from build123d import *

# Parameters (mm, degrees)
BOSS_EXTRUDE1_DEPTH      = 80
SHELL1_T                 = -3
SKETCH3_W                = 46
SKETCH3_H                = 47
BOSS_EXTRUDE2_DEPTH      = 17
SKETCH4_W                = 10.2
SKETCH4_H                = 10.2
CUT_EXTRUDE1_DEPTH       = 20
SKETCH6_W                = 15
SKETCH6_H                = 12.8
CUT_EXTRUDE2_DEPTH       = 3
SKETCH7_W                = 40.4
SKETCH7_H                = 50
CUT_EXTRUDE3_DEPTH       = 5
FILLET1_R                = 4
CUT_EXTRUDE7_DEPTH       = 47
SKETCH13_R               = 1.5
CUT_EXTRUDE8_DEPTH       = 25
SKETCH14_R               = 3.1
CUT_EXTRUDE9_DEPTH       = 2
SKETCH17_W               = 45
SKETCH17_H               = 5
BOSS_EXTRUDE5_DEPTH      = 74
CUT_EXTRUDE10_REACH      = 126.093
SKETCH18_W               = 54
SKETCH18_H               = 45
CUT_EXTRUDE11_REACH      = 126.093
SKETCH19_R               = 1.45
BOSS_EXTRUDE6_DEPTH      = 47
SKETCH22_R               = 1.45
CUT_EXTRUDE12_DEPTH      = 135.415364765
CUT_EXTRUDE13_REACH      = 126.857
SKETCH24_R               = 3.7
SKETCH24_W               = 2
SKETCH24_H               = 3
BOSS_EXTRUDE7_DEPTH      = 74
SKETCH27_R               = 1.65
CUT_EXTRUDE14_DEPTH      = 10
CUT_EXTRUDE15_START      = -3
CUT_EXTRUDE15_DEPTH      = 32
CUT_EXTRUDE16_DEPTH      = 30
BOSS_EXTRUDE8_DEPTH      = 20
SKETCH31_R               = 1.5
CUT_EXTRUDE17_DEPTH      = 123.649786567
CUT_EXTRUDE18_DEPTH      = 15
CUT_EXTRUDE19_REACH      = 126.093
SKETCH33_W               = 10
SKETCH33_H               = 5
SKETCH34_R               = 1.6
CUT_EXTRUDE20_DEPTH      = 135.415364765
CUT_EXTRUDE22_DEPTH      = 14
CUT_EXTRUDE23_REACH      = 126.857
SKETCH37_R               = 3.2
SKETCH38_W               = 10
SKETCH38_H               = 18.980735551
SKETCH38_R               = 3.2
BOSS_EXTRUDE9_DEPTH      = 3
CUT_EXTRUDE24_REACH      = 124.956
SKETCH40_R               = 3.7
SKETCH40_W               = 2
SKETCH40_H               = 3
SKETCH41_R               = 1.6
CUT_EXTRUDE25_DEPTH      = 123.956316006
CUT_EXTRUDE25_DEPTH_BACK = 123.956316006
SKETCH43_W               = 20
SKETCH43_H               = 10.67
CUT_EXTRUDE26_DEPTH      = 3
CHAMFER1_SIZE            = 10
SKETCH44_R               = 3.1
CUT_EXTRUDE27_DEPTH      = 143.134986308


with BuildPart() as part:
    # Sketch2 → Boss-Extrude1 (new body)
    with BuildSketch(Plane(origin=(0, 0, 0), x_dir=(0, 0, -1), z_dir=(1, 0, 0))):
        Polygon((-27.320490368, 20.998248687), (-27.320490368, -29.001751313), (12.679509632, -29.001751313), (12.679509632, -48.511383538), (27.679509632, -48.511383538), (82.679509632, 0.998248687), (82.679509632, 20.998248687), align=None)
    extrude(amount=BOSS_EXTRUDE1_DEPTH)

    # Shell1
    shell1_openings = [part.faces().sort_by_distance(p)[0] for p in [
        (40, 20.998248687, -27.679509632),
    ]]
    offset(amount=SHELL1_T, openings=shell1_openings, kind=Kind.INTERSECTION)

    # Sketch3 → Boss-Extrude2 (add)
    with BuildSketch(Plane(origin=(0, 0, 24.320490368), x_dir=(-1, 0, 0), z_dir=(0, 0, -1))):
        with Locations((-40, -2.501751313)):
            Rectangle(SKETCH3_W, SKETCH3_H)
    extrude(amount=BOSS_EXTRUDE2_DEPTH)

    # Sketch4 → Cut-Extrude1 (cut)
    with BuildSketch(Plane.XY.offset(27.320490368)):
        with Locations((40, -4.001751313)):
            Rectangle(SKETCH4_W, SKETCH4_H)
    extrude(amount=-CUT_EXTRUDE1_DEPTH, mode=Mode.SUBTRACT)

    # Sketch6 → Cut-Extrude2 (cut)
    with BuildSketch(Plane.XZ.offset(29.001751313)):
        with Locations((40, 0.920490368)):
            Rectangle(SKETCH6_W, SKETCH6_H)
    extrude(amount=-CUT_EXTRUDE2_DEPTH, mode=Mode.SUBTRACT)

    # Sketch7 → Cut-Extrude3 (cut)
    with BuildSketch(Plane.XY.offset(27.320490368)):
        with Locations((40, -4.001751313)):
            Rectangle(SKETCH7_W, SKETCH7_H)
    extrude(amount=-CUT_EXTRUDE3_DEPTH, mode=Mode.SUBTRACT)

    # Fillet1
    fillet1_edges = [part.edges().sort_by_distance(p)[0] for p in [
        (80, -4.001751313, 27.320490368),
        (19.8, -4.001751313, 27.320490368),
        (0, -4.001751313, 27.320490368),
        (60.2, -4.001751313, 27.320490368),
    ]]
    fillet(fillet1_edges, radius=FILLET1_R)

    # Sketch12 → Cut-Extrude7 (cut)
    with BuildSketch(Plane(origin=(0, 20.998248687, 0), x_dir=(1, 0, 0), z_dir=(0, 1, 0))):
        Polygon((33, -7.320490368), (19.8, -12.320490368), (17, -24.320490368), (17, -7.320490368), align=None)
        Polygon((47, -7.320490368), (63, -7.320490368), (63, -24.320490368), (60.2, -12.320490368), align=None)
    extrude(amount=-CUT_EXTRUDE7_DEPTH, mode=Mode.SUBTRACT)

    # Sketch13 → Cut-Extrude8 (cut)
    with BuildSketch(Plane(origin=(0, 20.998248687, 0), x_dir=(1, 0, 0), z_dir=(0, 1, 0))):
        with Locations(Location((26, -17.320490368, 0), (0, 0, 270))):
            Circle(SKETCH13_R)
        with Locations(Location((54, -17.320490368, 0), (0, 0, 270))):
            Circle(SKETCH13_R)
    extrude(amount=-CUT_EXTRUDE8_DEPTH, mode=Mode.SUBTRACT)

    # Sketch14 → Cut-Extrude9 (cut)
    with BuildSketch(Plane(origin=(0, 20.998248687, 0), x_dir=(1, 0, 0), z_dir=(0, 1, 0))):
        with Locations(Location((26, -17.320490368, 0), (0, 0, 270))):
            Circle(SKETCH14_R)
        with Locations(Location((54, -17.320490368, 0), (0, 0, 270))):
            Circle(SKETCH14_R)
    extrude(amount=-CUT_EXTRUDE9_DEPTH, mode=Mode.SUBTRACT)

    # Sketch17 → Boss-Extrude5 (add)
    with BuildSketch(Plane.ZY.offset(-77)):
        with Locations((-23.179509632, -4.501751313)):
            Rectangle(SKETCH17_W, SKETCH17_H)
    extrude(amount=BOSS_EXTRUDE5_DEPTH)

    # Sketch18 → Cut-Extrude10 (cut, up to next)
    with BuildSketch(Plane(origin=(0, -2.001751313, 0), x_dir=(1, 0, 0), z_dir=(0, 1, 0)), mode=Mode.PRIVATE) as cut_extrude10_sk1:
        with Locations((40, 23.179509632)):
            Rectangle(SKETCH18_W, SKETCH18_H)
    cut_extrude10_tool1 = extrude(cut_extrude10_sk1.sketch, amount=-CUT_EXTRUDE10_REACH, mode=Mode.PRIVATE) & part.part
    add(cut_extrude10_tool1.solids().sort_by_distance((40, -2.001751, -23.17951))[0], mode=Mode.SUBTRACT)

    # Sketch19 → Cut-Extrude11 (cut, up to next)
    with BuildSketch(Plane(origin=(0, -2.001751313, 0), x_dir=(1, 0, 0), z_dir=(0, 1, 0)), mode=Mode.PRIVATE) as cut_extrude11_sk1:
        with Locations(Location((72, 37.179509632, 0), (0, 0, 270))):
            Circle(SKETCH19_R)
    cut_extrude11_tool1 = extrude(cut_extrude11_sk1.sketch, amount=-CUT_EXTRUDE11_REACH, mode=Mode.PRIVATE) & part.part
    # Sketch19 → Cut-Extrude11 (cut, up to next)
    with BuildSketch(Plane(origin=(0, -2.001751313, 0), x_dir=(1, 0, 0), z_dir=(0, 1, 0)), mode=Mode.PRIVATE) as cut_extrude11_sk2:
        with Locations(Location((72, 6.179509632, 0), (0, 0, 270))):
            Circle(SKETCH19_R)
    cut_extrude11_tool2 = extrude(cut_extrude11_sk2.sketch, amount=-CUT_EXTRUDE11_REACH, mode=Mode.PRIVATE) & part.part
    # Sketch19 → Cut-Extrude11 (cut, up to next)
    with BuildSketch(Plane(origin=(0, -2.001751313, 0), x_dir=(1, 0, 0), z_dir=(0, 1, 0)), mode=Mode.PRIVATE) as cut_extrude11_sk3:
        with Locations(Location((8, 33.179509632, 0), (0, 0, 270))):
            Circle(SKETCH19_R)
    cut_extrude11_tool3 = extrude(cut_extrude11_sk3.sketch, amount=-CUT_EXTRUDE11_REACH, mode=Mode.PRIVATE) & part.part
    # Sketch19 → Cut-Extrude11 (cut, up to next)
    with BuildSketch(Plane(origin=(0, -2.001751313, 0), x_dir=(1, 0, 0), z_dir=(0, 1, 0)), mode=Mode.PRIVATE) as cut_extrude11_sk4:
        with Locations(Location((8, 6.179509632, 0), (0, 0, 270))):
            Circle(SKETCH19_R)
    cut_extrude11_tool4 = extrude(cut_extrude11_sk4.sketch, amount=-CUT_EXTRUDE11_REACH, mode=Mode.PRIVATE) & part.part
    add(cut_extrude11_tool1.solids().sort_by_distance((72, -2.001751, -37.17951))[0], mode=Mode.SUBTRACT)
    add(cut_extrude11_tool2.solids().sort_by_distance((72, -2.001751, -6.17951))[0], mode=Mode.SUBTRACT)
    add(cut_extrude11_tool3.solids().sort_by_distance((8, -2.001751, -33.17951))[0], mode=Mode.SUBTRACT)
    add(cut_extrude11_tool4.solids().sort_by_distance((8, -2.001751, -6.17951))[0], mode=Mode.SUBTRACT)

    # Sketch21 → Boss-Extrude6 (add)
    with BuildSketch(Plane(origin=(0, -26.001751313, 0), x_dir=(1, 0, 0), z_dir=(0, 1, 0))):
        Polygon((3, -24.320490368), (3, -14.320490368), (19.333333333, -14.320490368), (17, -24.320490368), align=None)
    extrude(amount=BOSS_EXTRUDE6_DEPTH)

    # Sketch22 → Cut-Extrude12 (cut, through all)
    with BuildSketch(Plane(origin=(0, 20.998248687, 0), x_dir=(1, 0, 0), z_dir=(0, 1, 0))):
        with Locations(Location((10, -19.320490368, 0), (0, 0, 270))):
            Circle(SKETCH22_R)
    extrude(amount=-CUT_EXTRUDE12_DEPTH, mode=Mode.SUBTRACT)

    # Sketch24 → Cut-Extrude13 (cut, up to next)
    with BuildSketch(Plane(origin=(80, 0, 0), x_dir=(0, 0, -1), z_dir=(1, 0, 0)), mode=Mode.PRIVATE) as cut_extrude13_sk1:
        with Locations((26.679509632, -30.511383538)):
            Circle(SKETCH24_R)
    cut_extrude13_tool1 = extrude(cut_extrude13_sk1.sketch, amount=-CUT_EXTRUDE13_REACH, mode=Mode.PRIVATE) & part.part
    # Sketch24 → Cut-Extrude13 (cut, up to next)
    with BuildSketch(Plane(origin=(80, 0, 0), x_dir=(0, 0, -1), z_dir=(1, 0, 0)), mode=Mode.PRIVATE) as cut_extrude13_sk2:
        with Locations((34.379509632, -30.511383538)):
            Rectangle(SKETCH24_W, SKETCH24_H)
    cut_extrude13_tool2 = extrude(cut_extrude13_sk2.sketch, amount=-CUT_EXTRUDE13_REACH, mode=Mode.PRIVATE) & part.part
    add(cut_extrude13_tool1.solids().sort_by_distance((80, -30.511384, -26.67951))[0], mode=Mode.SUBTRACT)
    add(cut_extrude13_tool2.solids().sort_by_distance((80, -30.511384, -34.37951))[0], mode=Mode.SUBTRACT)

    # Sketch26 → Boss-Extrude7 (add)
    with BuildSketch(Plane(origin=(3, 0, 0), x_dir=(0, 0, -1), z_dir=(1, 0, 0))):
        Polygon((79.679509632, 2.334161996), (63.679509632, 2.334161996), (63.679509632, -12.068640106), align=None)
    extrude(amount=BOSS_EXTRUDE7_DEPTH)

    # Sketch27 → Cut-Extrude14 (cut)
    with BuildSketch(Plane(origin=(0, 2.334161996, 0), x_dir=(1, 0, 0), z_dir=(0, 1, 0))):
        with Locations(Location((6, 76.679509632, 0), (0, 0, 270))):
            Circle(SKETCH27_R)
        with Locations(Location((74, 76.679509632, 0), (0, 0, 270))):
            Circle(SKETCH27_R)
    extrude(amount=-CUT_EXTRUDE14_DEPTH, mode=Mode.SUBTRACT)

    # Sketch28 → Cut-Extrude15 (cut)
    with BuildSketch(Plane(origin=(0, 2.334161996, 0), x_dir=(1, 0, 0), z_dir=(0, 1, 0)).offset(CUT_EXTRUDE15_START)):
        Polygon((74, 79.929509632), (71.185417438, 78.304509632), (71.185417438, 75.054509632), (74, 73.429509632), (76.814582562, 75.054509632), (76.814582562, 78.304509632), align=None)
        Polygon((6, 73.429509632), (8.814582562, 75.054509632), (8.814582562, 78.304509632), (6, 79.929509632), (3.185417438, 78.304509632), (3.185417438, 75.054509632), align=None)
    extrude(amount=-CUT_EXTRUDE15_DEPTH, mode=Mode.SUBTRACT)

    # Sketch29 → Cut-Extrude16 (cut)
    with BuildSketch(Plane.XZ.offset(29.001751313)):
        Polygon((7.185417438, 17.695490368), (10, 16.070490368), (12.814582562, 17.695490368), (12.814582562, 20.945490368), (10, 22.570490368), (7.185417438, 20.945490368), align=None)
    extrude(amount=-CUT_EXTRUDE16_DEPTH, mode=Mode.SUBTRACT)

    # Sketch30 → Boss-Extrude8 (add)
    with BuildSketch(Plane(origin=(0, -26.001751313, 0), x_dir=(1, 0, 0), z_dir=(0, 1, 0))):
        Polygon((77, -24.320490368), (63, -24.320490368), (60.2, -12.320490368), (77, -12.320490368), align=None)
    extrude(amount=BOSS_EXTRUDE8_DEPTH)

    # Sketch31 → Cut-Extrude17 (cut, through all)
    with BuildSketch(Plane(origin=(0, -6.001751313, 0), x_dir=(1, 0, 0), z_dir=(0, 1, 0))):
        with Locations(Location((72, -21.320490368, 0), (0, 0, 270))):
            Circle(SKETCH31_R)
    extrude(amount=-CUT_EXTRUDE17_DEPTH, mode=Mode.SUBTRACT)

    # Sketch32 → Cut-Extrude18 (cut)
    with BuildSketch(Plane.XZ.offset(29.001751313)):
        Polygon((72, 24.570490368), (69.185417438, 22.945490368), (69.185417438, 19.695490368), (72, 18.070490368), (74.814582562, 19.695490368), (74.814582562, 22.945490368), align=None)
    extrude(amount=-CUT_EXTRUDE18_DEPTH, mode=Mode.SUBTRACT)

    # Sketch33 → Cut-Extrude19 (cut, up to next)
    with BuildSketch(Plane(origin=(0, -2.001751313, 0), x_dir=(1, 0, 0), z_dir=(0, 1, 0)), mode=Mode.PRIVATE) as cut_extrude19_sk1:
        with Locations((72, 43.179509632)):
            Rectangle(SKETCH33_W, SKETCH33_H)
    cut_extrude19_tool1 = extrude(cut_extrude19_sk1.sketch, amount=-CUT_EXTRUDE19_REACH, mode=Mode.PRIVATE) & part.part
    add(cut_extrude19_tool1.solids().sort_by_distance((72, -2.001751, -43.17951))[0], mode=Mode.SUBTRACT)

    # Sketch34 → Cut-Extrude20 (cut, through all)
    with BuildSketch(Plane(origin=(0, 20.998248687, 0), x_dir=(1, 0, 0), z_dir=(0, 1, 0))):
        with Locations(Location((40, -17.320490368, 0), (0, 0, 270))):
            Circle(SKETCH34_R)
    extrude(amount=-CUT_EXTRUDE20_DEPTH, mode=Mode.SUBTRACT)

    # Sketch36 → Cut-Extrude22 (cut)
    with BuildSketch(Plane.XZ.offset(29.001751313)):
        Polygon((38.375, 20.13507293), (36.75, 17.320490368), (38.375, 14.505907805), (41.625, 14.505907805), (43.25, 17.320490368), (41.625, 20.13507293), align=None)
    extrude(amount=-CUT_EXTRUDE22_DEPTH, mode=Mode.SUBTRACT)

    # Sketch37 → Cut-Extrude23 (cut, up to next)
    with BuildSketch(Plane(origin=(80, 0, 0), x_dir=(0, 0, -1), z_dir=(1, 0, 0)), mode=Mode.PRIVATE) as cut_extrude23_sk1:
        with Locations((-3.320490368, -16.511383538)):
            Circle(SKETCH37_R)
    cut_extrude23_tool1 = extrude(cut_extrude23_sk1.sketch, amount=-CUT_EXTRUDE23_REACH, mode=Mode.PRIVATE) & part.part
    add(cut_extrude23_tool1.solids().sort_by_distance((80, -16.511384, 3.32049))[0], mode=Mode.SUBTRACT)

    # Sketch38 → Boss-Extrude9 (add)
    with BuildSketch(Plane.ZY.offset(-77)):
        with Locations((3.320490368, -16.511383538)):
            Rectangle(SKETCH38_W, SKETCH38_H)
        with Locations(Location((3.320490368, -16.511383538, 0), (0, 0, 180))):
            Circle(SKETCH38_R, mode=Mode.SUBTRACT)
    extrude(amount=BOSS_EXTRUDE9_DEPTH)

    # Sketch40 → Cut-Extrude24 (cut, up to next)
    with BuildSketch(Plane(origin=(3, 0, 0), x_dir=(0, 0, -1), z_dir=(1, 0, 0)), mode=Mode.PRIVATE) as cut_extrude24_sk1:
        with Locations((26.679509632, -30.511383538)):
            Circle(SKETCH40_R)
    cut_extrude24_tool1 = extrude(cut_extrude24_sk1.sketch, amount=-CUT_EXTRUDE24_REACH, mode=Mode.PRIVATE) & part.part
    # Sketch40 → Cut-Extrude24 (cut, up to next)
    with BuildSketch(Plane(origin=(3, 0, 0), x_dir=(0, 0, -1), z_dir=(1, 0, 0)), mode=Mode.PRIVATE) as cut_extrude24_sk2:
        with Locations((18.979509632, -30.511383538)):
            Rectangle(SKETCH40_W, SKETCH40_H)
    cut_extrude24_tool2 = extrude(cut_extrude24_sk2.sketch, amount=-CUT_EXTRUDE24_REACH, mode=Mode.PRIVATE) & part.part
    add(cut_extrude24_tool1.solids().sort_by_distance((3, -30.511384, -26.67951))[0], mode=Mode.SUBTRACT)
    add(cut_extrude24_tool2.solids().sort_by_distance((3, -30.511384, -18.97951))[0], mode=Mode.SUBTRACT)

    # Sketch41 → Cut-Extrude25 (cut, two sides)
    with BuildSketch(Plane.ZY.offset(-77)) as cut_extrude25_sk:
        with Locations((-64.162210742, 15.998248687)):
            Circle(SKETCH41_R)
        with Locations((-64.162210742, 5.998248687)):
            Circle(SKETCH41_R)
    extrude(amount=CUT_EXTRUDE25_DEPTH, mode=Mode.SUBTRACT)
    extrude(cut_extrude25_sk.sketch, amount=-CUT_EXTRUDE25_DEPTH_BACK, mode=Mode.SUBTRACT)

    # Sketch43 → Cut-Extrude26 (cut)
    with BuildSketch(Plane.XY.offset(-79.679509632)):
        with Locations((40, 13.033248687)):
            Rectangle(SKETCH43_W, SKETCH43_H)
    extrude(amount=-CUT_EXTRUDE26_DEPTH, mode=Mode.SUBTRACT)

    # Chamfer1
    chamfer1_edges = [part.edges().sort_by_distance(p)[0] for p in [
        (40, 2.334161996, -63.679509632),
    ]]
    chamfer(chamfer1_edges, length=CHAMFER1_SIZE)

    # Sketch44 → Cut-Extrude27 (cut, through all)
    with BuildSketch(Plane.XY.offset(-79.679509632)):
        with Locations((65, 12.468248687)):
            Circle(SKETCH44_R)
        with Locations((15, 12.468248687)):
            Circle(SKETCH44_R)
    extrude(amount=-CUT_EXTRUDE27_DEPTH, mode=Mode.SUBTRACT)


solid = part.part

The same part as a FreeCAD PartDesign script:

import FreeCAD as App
import Part
import Sketcher
from FreeCAD import Vector
Q = App.Units.Quantity


def edges_at(feature, points):
    """Names of the edges that pass closest to the given points."""
    edges = feature.Shape.Edges
    near = lambda p: min(range(len(edges)), key=lambda i: edges[i].distToShape(Part.Vertex(*p))[0])
    return sorted({f"Edge{near(p) + 1}" for p in points})


def faces_at(feature, points):
    """Names of the faces that lie closest to the given points."""
    faces = feature.Shape.Faces
    near = lambda p: min(range(len(faces)), key=lambda i: faces[i].distToShape(Part.Vertex(*p))[0])
    return sorted({f"Face{near(p) + 1}" for p in points})


def add_polygon(sketch, points):
    """Adds a closed chain of lines whose ends are joined by coincident constraints."""
    first, n = sketch.GeometryCount, len(points)
    for a, b in zip(points, points[1:] + points[:1]):
        sketch.addGeometry(Part.LineSegment(App.Vector(*a, 0), App.Vector(*b, 0)), False)
    for i in range(n):
        sketch.addConstraint(Sketcher.Constraint("Coincident", first + i, 2, first + (i + 1) % n, 1))

doc = App.newDocument("Part")
body = doc.addObject("PartDesign::Body", "Body")

# Sketch on YZ plane
sketch1 = body.newObject("Sketcher::SketchObject", "Sketch")
sketch1.AttachmentSupport = (doc.getObject("YZ_Plane"), [""])
sketch1.MapMode = "FlatFace"
add_polygon(sketch1, [(21, 27), (-29, 27), (-29, -13), (-49, -13), (-49, -28), (1, -83), (21, -83)])  # lines 0-6
sketch1.addConstraint([
    Sketcher.Constraint("Horizontal", 0),
    Sketcher.Constraint("Vertical", 1),
    Sketcher.Constraint("Horizontal", 2),
    Sketcher.Constraint("Vertical", 3),
    Sketcher.Constraint("Horizontal", 5),
    Sketcher.Constraint("Vertical", 6),
    Sketcher.Constraint("DistanceX", 0, 2, 0, 1, Q("50 mm")),
    Sketcher.Constraint("DistanceX", 5, 1, 5, 2, Q("20 mm")),
    Sketcher.Constraint("DistanceY", 1, 2, 1, 1, Q("40 mm")),
    Sketcher.Constraint("DistanceY", 3, 2, 3, 1, Q("15 mm")),
    Sketcher.Constraint("DistanceY", 6, 1, 6, 2, Q("110 mm")),
    Sketcher.Constraint("DistanceX", 2, 2, 2, 1, Q("19.509632 mm")),
    Sketcher.Constraint("DistanceX", 0, 2, -1, 1, Q("29.001751 mm")),
    Sketcher.Constraint("DistanceY", -1, 1, 0, 2, Q("27.32049 mm")),
])
pad1 = body.newObject("PartDesign::Pad", "Pad")
pad1.Profile = sketch1
pad1.Length = 80
doc.recompute()

thickness = body.newObject("PartDesign::Thickness", "Thickness")
thickness.Base = (pad1, faces_at(pad1, [(40, 20.998, -27.68)]))
thickness.Value = 3
thickness.Reversed = True
thickness.Join = "Intersection"

# Sketch on XY plane
sketch2 = body.newObject("Sketcher::SketchObject", "Sketch001")
sketch2.AttachmentSupport = (doc.getObject("XY_Plane"), [""])
sketch2.MapMode = "FlatFace"
sketch2.AttachmentOffset = App.Placement(Vector(0, 0, 24.32049), App.Rotation())
add_polygon(sketch2, [(63, 21), (63, -26), (17, -26), (17, 21)])  # lines 0-3
sketch2.addConstraint([
    Sketcher.Constraint("Vertical", 0),
    Sketcher.Constraint("Horizontal", 1),
    Sketcher.Constraint("Vertical", 2),
    Sketcher.Constraint("Horizontal", 3),
    Sketcher.Constraint("DistanceX", 1, 2, 1, 1, Q("46 mm")),
    Sketcher.Constraint("DistanceY", 0, 2, 0, 1, Q("47 mm")),
    Sketcher.Constraint("DistanceX", -1, 1, 0, 2, Q("63 mm")),
    Sketcher.Constraint("DistanceY", 0, 2, -1, 1, Q("26.001751 mm")),
])
pad2 = body.newObject("PartDesign::Pad", "Pad001")
pad2.Profile = sketch2
pad2.Length = 17
pad2.Reversed = True

# Sketch on XY plane
sketch3 = body.newObject("Sketcher::SketchObject", "Sketch002")
sketch3.AttachmentSupport = (doc.getObject("XY_Plane"), [""])
sketch3.MapMode = "FlatFace"
sketch3.AttachmentOffset = App.Placement(Vector(0, 0, 27.32049), App.Rotation())
add_polygon(sketch3, [(35, 1), (35, -9), (45, -9), (45, 1)])  # lines 0-3
sketch3.addConstraint([
    Sketcher.Constraint("Vertical", 0),
    Sketcher.Constraint("Horizontal", 1),
    Sketcher.Constraint("Vertical", 2),
    Sketcher.Constraint("Horizontal", 3),
    Sketcher.Constraint("Equal", 3, 0),
    Sketcher.Constraint("DistanceX", 1, 1, 1, 2, Q("10.2 mm")),
    Sketcher.Constraint("DistanceX", -1, 1, 0, 2, Q("34.9 mm")),
    Sketcher.Constraint("DistanceY", 0, 2, -1, 1, Q("9.101751 mm")),
])
pocket1 = body.newObject("PartDesign::Pocket", "Pocket")
pocket1.Profile = sketch3
pocket1.Length = 20

# Sketch on XZ plane
sketch4 = body.newObject("Sketcher::SketchObject", "Sketch003")
sketch4.AttachmentSupport = (doc.getObject("XZ_Plane"), [""])
sketch4.MapMode = "FlatFace"
sketch4.AttachmentOffset = App.Placement(Vector(0, 0, 29.001751), App.Rotation())
add_polygon(sketch4, [(32, 7), (32, -5), (48, -5), (48, 7)])  # lines 0-3
sketch4.addConstraint([
    Sketcher.Constraint("Vertical", 0),
    Sketcher.Constraint("Horizontal", 1),
    Sketcher.Constraint("Vertical", 2),
    Sketcher.Constraint("Horizontal", 3),
    Sketcher.Constraint("DistanceX", 1, 1, 1, 2, Q("15 mm")),
    Sketcher.Constraint("DistanceY", 0, 2, 0, 1, Q("12.8 mm")),
    Sketcher.Constraint("DistanceX", -1, 1, 0, 2, Q("32.5 mm")),
    Sketcher.Constraint("DistanceY", 0, 2, -1, 1, Q("5.47951 mm")),
])
pocket2 = body.newObject("PartDesign::Pocket", "Pocket001")
pocket2.Profile = sketch4
pocket2.Length = 3

# Sketch on XY plane
sketch5 = body.newObject("Sketcher::SketchObject", "Sketch004")
sketch5.AttachmentSupport = (doc.getObject("XY_Plane"), [""])
sketch5.MapMode = "FlatFace"
sketch5.AttachmentOffset = App.Placement(Vector(0, 0, 27.32049), App.Rotation())
add_polygon(sketch5, [(20, 21), (20, -29), (60, -29), (60, 21)])  # lines 0-3
sketch5.addConstraint([
    Sketcher.Constraint("Vertical", 0),
    Sketcher.Constraint("Horizontal", 1),
    Sketcher.Constraint("Vertical", 2),
    Sketcher.Constraint("Horizontal", 3),
    Sketcher.Constraint("DistanceY", 0, 2, 0, 1, Q("50 mm")),
    Sketcher.Constraint("DistanceX", 1, 1, 1, 2, Q("40.4 mm")),
    Sketcher.Constraint("DistanceX", -1, 1, 0, 2, Q("19.8 mm")),
    Sketcher.Constraint("DistanceY", 0, 2, -1, 1, Q("29.001751 mm")),
])
pocket3 = body.newObject("PartDesign::Pocket", "Pocket002")
pocket3.Profile = sketch5
pocket3.Length = 5
doc.recompute()

fillet = body.newObject("PartDesign::Fillet", "Fillet")
fillet.Base = (pocket3, edges_at(pocket3, [
    (80, -4.002, 27.32),
    (19.8, -4.002, 27.32),
    (0, -4.002, 27.32),
    (60.2, -4.002, 27.32),
]))
fillet.Radius = 4

# Sketch on XZ plane
sketch6 = body.newObject("Sketcher::SketchObject", "Sketch005")
sketch6.AttachmentSupport = (doc.getObject("XZ_Plane"), [""])
sketch6.MapMode = "FlatFace"
sketch6.AttachmentOffset = App.Placement(Vector(0, 0, -20.998249), App.Rotation())
add_polygon(sketch6, [(20, 12), (33, 7), (17, 7), (17, 24)])  # lines 0-3
add_polygon(sketch6, [(63, 7), (47, 7), (60, 12), (63, 24)])  # lines 4-7
sketch6.addConstraint([
    Sketcher.Constraint("Horizontal", 1),
    Sketcher.Constraint("Vertical", 2),
    Sketcher.Constraint("Horizontal", 4),
    Sketcher.Constraint("Vertical", 7),
    Sketcher.Constraint("Horizontal", 1, 2, 4, 2),
    Sketcher.Constraint("Horizontal", 3, 2, 5, 2),
    Sketcher.Constraint("Horizontal", 2, 2, 6, 2),
    Sketcher.Constraint("Equal", 1, 4),
    Sketcher.Constraint("Equal", 0, 5),
    Sketcher.Constraint("DistanceX", 1, 2, 1, 1, Q("16 mm")),
    Sketcher.Constraint("DistanceY", 2, 1, 2, 2, Q("17 mm")),
    Sketcher.Constraint("DistanceX", -1, 1, 0, 2, Q("33 mm")),
    Sketcher.Constraint("DistanceX", -1, 1, 4, 2, Q("47 mm")),
    Sketcher.Constraint("DistanceY", 1, 2, 3, 2, Q("5 mm")),
    Sketcher.Constraint("DistanceX", -1, 1, 3, 2, Q("19.8 mm")),
    Sketcher.Constraint("DistanceY", -1, 1, 0, 2, Q("7.32049 mm")),
])
pocket4 = body.newObject("PartDesign::Pocket", "Pocket003")
pocket4.Profile = sketch6
pocket4.Length = 47
pocket4.Reversed = True

# Sketch on XZ plane
sketch7 = body.newObject("Sketcher::SketchObject", "Sketch006")
sketch7.AttachmentSupport = (doc.getObject("XZ_Plane"), [""])
sketch7.MapMode = "FlatFace"
sketch7.AttachmentOffset = App.Placement(Vector(0, 0, -20.998249), App.Rotation())
sketch7.addGeometry([
    Part.Circle(Vector(26, 17.3, 0), Vector(0, 0, 1), 1.5),
    Part.Circle(Vector(54, 17.3, 0), Vector(0, 0, 1), 1.5),
], False)
sketch7.addConstraint([
    Sketcher.Constraint("Equal", 0, 1),
    Sketcher.Constraint("Horizontal", 0, 3, 1, 3),
    Sketcher.Constraint("Diameter", 0, Q("3 mm")),
    Sketcher.Constraint("DistanceX", -1, 1, 0, 3, Q("26 mm")),
    Sketcher.Constraint("DistanceX", -1, 1, 1, 3, Q("54 mm")),
    Sketcher.Constraint("DistanceY", -1, 1, 0, 3, Q("17.32049 mm")),
])
pocket5 = body.newObject("PartDesign::Pocket", "Pocket004")
pocket5.Profile = sketch7
pocket5.Length = 25
pocket5.Reversed = True

# Sketch on XZ plane
sketch8 = body.newObject("Sketcher::SketchObject", "Sketch007")
sketch8.AttachmentSupport = (doc.getObject("XZ_Plane"), [""])
sketch8.MapMode = "FlatFace"
sketch8.AttachmentOffset = App.Placement(Vector(0, 0, -20.998249), App.Rotation())
sketch8.addGeometry([
    Part.Circle(Vector(26, 17.3, 0), Vector(0, 0, 1), 3.1),
    Part.Circle(Vector(54, 17.3, 0), Vector(0, 0, 1), 3.1),
], False)
sketch8.addConstraint([
    Sketcher.Constraint("Equal", 0, 1),
    Sketcher.Constraint("Horizontal", 0, 3, 1, 3),
    Sketcher.Constraint("Diameter", 0, Q("6.2 mm")),
    Sketcher.Constraint("DistanceX", -1, 1, 0, 3, Q("26 mm")),
    Sketcher.Constraint("DistanceX", -1, 1, 1, 3, Q("54 mm")),
    Sketcher.Constraint("DistanceY", -1, 1, 0, 3, Q("17.32049 mm")),
])
pocket6 = body.newObject("PartDesign::Pocket", "Pocket005")
pocket6.Profile = sketch8
pocket6.Length = 2
pocket6.Reversed = True

# Sketch on YZ plane
sketch9 = body.newObject("Sketcher::SketchObject", "Sketch008")
sketch9.AttachmentSupport = (doc.getObject("YZ_Plane"), [""])
sketch9.MapMode = "FlatFace"
sketch9.AttachmentOffset = App.Placement(Vector(0, 0, 77), App.Rotation())
add_polygon(sketch9, [(-2, -46), (-7, -46), (-7, -1), (-2, -1)])  # lines 0-3
sketch9.addConstraint([
    Sketcher.Constraint("Horizontal", 0),
    Sketcher.Constraint("Vertical", 1),
    Sketcher.Constraint("Horizontal", 2),
    Sketcher.Constraint("Vertical", 3),
    Sketcher.Constraint("DistanceX", 0, 2, 0, 1, Q("5 mm")),
    Sketcher.Constraint("DistanceY", 1, 1, 1, 2, Q("45 mm")),
    Sketcher.Constraint("DistanceX", 0, 2, -1, 1, Q("7.001751 mm")),
    Sketcher.Constraint("DistanceY", 0, 2, -1, 1, Q("45.67951 mm")),
])
pad3 = body.newObject("PartDesign::Pad", "Pad002")
pad3.Profile = sketch9
pad3.Length = 74
pad3.Reversed = True

# Sketch on XZ plane
sketch10 = body.newObject("Sketcher::SketchObject", "Sketch009")
sketch10.AttachmentSupport = (doc.getObject("XZ_Plane"), [""])
sketch10.MapMode = "FlatFace"
sketch10.AttachmentOffset = App.Placement(Vector(0, 0, 2.001751), App.Rotation())
add_polygon(sketch10, [(13, -46), (13, -1), (67, -1), (67, -46)])  # lines 0-3
sketch10.addConstraint([
    Sketcher.Constraint("Vertical", 0),
    Sketcher.Constraint("Horizontal", 1),
    Sketcher.Constraint("Vertical", 2),
    Sketcher.Constraint("Horizontal", 3),
    Sketcher.Constraint("DistanceX", 1, 1, 1, 2, Q("54 mm")),
    Sketcher.Constraint("DistanceY", 0, 1, 0, 2, Q("45 mm")),
    Sketcher.Constraint("DistanceX", -1, 1, 0, 2, Q("13 mm")),
    Sketcher.Constraint("DistanceY", 0, 2, -1, 1, Q("0.67951 mm")),
])
pocket7 = body.newObject("PartDesign::Pocket", "Pocket006")
pocket7.Profile = sketch10
pocket7.Type = "UpToFirst"
pocket7.Reversed = True

# Sketch on XZ plane
sketch11 = body.newObject("Sketcher::SketchObject", "Sketch010")
sketch11.AttachmentSupport = (doc.getObject("XZ_Plane"), [""])
sketch11.MapMode = "FlatFace"
sketch11.AttachmentOffset = App.Placement(Vector(0, 0, 2.001751), App.Rotation())
sketch11.addGeometry(Part.Circle(Vector(72, -37.2, 0), Vector(0, 0, 1), 1.4), False)
sketch11.addConstraint([
    Sketcher.Constraint("Diameter", 0, Q("2.9 mm")),
    Sketcher.Constraint("DistanceX", -1, 1, 0, 3, Q("72 mm")),
    Sketcher.Constraint("DistanceY", 0, 3, -1, 1, Q("37.17951 mm")),
])
pocket8 = body.newObject("PartDesign::Pocket", "Pocket007")
pocket8.Profile = sketch11
pocket8.Type = "UpToFirst"
pocket8.Reversed = True

# Sketch on XZ plane
sketch12 = body.newObject("Sketcher::SketchObject", "Sketch011")
sketch12.AttachmentSupport = (doc.getObject("XZ_Plane"), [""])
sketch12.MapMode = "FlatFace"
sketch12.AttachmentOffset = App.Placement(Vector(0, 0, 2.001751), App.Rotation())
sketch12.addGeometry(Part.Circle(Vector(72, -6.2, 0), Vector(0, 0, 1), 1.4), False)
sketch12.addConstraint([
    Sketcher.Constraint("Diameter", 0, Q("2.9 mm")),
    Sketcher.Constraint("DistanceX", -1, 1, 0, 3, Q("72 mm")),
    Sketcher.Constraint("DistanceY", 0, 3, -1, 1, Q("6.17951 mm")),
])
pocket9 = body.newObject("PartDesign::Pocket", "Pocket008")
pocket9.Profile = sketch12
pocket9.Type = "UpToFirst"
pocket9.Reversed = True

# Sketch on XZ plane
sketch13 = body.newObject("Sketcher::SketchObject", "Sketch012")
sketch13.AttachmentSupport = (doc.getObject("XZ_Plane"), [""])
sketch13.MapMode = "FlatFace"
sketch13.AttachmentOffset = App.Placement(Vector(0, 0, 2.001751), App.Rotation())
sketch13.addGeometry(Part.Circle(Vector(8, -33.2, 0), Vector(0, 0, 1), 1.4), False)
sketch13.addConstraint([
    Sketcher.Constraint("Diameter", 0, Q("2.9 mm")),
    Sketcher.Constraint("DistanceX", -1, 1, 0, 3, Q("8 mm")),
    Sketcher.Constraint("DistanceY", 0, 3, -1, 1, Q("33.17951 mm")),
])
pocket10 = body.newObject("PartDesign::Pocket", "Pocket009")
pocket10.Profile = sketch13
pocket10.Type = "UpToFirst"
pocket10.Reversed = True

# Sketch on XZ plane
sketch14 = body.newObject("Sketcher::SketchObject", "Sketch013")
sketch14.AttachmentSupport = (doc.getObject("XZ_Plane"), [""])
sketch14.MapMode = "FlatFace"
sketch14.AttachmentOffset = App.Placement(Vector(0, 0, 2.001751), App.Rotation())
sketch14.addGeometry(Part.Circle(Vector(8, -6.2, 0), Vector(0, 0, 1), 1.4), False)
sketch14.addConstraint([
    Sketcher.Constraint("Diameter", 0, Q("2.9 mm")),
    Sketcher.Constraint("DistanceX", -1, 1, 0, 3, Q("8 mm")),
    Sketcher.Constraint("DistanceY", 0, 3, -1, 1, Q("6.17951 mm")),
])
pocket11 = body.newObject("PartDesign::Pocket", "Pocket010")
pocket11.Profile = sketch14
pocket11.Type = "UpToFirst"
pocket11.Reversed = True

# Sketch on XZ plane
sketch15 = body.newObject("Sketcher::SketchObject", "Sketch014")
sketch15.AttachmentSupport = (doc.getObject("XZ_Plane"), [""])
sketch15.MapMode = "FlatFace"
sketch15.AttachmentOffset = App.Placement(Vector(0, 0, 26.001751), App.Rotation())
add_polygon(sketch15, [(3, 14), (3, 24), (17, 24), (19, 14)])  # lines 0-3
sketch15.addConstraint([
    Sketcher.Constraint("Vertical", 0),
    Sketcher.Constraint("Horizontal", 1),
    Sketcher.Constraint("Horizontal", 3),
    Sketcher.Constraint("DistanceX", 1, 1, 1, 2, Q("14 mm")),
    Sketcher.Constraint("DistanceY", 0, 1, 0, 2, Q("10 mm")),
    Sketcher.Constraint("DistanceX", -1, 1, 0, 2, Q("3 mm")),
    Sketcher.Constraint("DistanceX", 3, 2, 3, 1, Q("16.333333 mm")),
    Sketcher.Constraint("DistanceY", -1, 1, 0, 2, Q("24.32049 mm")),
])
pad4 = body.newObject("PartDesign::Pad", "Pad003")
pad4.Profile = sketch15
pad4.Length = 47
pad4.Reversed = True

# Sketch on XZ plane
sketch16 = body.newObject("Sketcher::SketchObject", "Sketch015")
sketch16.AttachmentSupport = (doc.getObject("XZ_Plane"), [""])
sketch16.MapMode = "FlatFace"
sketch16.AttachmentOffset = App.Placement(Vector(0, 0, -20.998249), App.Rotation())
sketch16.addGeometry(Part.Circle(Vector(10, 19.3, 0), Vector(0, 0, 1), 1.4), False)
sketch16.addConstraint([
    Sketcher.Constraint("Diameter", 0, Q("2.9 mm")),
    Sketcher.Constraint("DistanceX", -1, 1, 0, 3, Q("10 mm")),
    Sketcher.Constraint("DistanceY", -1, 1, 0, 3, Q("19.32049 mm")),
])
pocket12 = body.newObject("PartDesign::Pocket", "Pocket011")
pocket12.Profile = sketch16
pocket12.Type = "ThroughAll"
pocket12.Reversed = True

# Sketch on YZ plane
sketch17 = body.newObject("Sketcher::SketchObject", "Sketch016")
sketch17.AttachmentSupport = (doc.getObject("YZ_Plane"), [""])
sketch17.MapMode = "FlatFace"
sketch17.AttachmentOffset = App.Placement(Vector(0, 0, 80), App.Rotation())
sketch17.addGeometry(Part.Circle(Vector(-30.5, -26.7, 0), Vector(0, 0, 1), 3.7), False)
sketch17.addConstraint([
    Sketcher.Constraint("Diameter", 0, Q("7.4 mm")),
    Sketcher.Constraint("DistanceY", 0, 3, -1, 1, Q("26.67951 mm")),
    Sketcher.Constraint("DistanceX", 0, 3, -1, 1, Q("30.511384 mm")),
])
pocket13 = body.newObject("PartDesign::Pocket", "Pocket012")
pocket13.Profile = sketch17
pocket13.Type = "UpToFirst"

# Sketch on YZ plane
sketch18 = body.newObject("Sketcher::SketchObject", "Sketch017")
sketch18.AttachmentSupport = (doc.getObject("YZ_Plane"), [""])
sketch18.MapMode = "FlatFace"
sketch18.AttachmentOffset = App.Placement(Vector(0, 0, 80), App.Rotation())
add_polygon(sketch18, [(-29, -33.4), (-32, -33.4), (-32, -35.4), (-29, -35.4)])  # lines 0-3
sketch18.addConstraint([
    Sketcher.Constraint("Horizontal", 0),
    Sketcher.Constraint("Vertical", 1),
    Sketcher.Constraint("Horizontal", 2),
    Sketcher.Constraint("Vertical", 3),
    Sketcher.Constraint("DistanceX", 0, 2, 0, 1, Q("3 mm")),
    Sketcher.Constraint("DistanceY", 1, 2, 1, 1, Q("2 mm")),
    Sketcher.Constraint("DistanceY", 0, 2, -1, 1, Q("33.37951 mm")),
    Sketcher.Constraint("DistanceX", 0, 2, -1, 1, Q("32.011384 mm")),
])
pocket14 = body.newObject("PartDesign::Pocket", "Pocket013")
pocket14.Profile = sketch18
pocket14.Type = "UpToFirst"

# Sketch on YZ plane
sketch19 = body.newObject("Sketcher::SketchObject", "Sketch018")
sketch19.AttachmentSupport = (doc.getObject("YZ_Plane"), [""])
sketch19.MapMode = "FlatFace"
sketch19.AttachmentOffset = App.Placement(Vector(0, 0, 3), App.Rotation())
add_polygon(sketch19, [(2, -80), (2, -64), (-12, -64)])  # lines 0-2
sketch19.addConstraint([
    Sketcher.Constraint("Vertical", 0),
    Sketcher.Constraint("Horizontal", 1),
    Sketcher.Constraint("DistanceY", 0, 1, 0, 2, Q("16 mm")),
    Sketcher.Constraint("DistanceX", 1, 2, 1, 1, Q("14.402802 mm")),
    Sketcher.Constraint("DistanceX", -1, 1, 0, 2, Q("2.334162 mm")),
    Sketcher.Constraint("DistanceY", 0, 2, -1, 1, Q("63.67951 mm")),
])
pad5 = body.newObject("PartDesign::Pad", "Pad004")
pad5.Profile = sketch19
pad5.Length = 74

# Sketch on XZ plane
sketch20 = body.newObject("Sketcher::SketchObject", "Sketch019")
sketch20.AttachmentSupport = (doc.getObject("XZ_Plane"), [""])
sketch20.MapMode = "FlatFace"
sketch20.AttachmentOffset = App.Placement(Vector(0, 0, -2.334162), App.Rotation())
sketch20.addGeometry([
    Part.Circle(Vector(6, -76.7, 0), Vector(0, 0, 1), 1.6),
    Part.Circle(Vector(74, -76.7, 0), Vector(0, 0, 1), 1.6),
], False)
sketch20.addConstraint([
    Sketcher.Constraint("Equal", 0, 1),
    Sketcher.Constraint("Horizontal", 0, 3, 1, 3),
    Sketcher.Constraint("Diameter", 0, Q("3.3 mm")),
    Sketcher.Constraint("DistanceX", -1, 1, 0, 3, Q("6 mm")),
    Sketcher.Constraint("DistanceX", -1, 1, 1, 3, Q("74 mm")),
    Sketcher.Constraint("DistanceY", 0, 3, -1, 1, Q("76.67951 mm")),
])
pocket15 = body.newObject("PartDesign::Pocket", "Pocket014")
pocket15.Profile = sketch20
pocket15.Length = 10
pocket15.Reversed = True

# Sketch on XZ plane
sketch21 = body.newObject("Sketcher::SketchObject", "Sketch020")
sketch21.AttachmentSupport = (doc.getObject("XZ_Plane"), [""])
sketch21.MapMode = "FlatFace"
sketch21.AttachmentOffset = App.Placement(Vector(0, 0, 0.665838), App.Rotation())
add_polygon(sketch21, [(74, -79.9), (71.2, -78.3), (71.2, -75.1), (74, -73.4), (76.8, -75.1), (76.8, -78.3)])  # lines 0-5
add_polygon(sketch21, [(6, -73.4), (8.8, -75.1), (8.8, -78.3), (6, -79.9), (3.2, -78.3), (3.2, -75.1)])  # lines 6-11
sketch21.addConstraint([
    Sketcher.Constraint("Vertical", 1),
    Sketcher.Constraint("Vertical", 4),
    Sketcher.Constraint("Vertical", 7),
    Sketcher.Constraint("Vertical", 10),
    Sketcher.Constraint("Parallel", 0, 3),
    Sketcher.Constraint("Parallel", 2, 5),
    Sketcher.Constraint("Parallel", 3, 6),
    Sketcher.Constraint("Parallel", 5, 8),
    Sketcher.Constraint("Parallel", 6, 9),
    Sketcher.Constraint("Parallel", 8, 11),
    Sketcher.Constraint("Horizontal", 1, 2, 3, 2),
    Sketcher.Constraint("Horizontal", 0, 2, 4, 2),
    Sketcher.Constraint("Horizontal", 3, 2, 6, 2),
    Sketcher.Constraint("Horizontal", 4, 2, 7, 2),
    Sketcher.Constraint("Horizontal", 5, 2, 8, 2),
    Sketcher.Constraint("Horizontal", 7, 2, 9, 2),
    Sketcher.Constraint("Horizontal", 6, 2, 10, 2),
    Sketcher.Constraint("Vertical", 2, 2, 5, 2),
    Sketcher.Constraint("Angle", 0, Q("150 deg")),
    Sketcher.Constraint("DistanceX", -1, 1, 2, 2, Q("74 mm")),
    Sketcher.Constraint("DistanceX", -1, 1, 8, 2, Q("6 mm")),
    Sketcher.Constraint("DistanceY", 1, 1, 1, 2, Q("3.25 mm")),
    Sketcher.Constraint("DistanceY", 5, 2, 2, 2, Q("6.5 mm")),
    Sketcher.Constraint("DistanceY", 0, 2, -1, 1, Q("78.30451 mm")),
])
pocket16 = body.newObject("PartDesign::Pocket", "Pocket015")
pocket16.Profile = sketch21
pocket16.Length = 32
pocket16.Reversed = True

# Sketch on XZ plane
sketch22 = body.newObject("Sketcher::SketchObject", "Sketch021")
sketch22.AttachmentSupport = (doc.getObject("XZ_Plane"), [""])
sketch22.MapMode = "FlatFace"
sketch22.AttachmentOffset = App.Placement(Vector(0, 0, 29.001751), App.Rotation())
add_polygon(sketch22, [(7.2, 17.7), (10, 16.1), (12.8, 17.7), (12.8, 20.9), (10, 22.6), (7.2, 20.9)])  # lines 0-5
sketch22.addConstraint([
    Sketcher.Constraint("Vertical", 2),
    Sketcher.Constraint("Vertical", 5),
    Sketcher.Constraint("Parallel", 0, 3),
    Sketcher.Constraint("Parallel", 1, 4),
    Sketcher.Constraint("Horizontal", 2, 2, 4, 2),
    Sketcher.Constraint("Horizontal", 1, 2, 5, 2),
    Sketcher.Constraint("Vertical", 0, 2, 3, 2),
    Sketcher.Constraint("Angle", 0, Q("-30 deg")),
    Sketcher.Constraint("DistanceX", -1, 1, 0, 2, Q("10 mm")),
    Sketcher.Constraint("DistanceY", 2, 1, 2, 2, Q("3.25 mm")),
    Sketcher.Constraint("DistanceY", 0, 2, 3, 2, Q("6.5 mm")),
    Sketcher.Constraint("DistanceY", -1, 1, 0, 2, Q("16.07049 mm")),
])
pocket17 = body.newObject("PartDesign::Pocket", "Pocket016")
pocket17.Profile = sketch22
pocket17.Length = 30

# Sketch on XZ plane
sketch23 = body.newObject("Sketcher::SketchObject", "Sketch022")
sketch23.AttachmentSupport = (doc.getObject("XZ_Plane"), [""])
sketch23.MapMode = "FlatFace"
sketch23.AttachmentOffset = App.Placement(Vector(0, 0, 26.001751), App.Rotation())
add_polygon(sketch23, [(63, 24), (77, 24), (77, 12), (60, 12)])  # lines 0-3
sketch23.addConstraint([
    Sketcher.Constraint("Horizontal", 0),
    Sketcher.Constraint("Vertical", 1),
    Sketcher.Constraint("Horizontal", 2),
    Sketcher.Constraint("DistanceX", 0, 1, 0, 2, Q("14 mm")),
    Sketcher.Constraint("DistanceY", 1, 2, 1, 1, Q("12 mm")),
    Sketcher.Constraint("DistanceX", 2, 2, 2, 1, Q("16.8 mm")),
    Sketcher.Constraint("DistanceX", -1, 1, 0, 2, Q("77 mm")),
    Sketcher.Constraint("DistanceY", -1, 1, 0, 2, Q("24.32049 mm")),
])
pad6 = body.newObject("PartDesign::Pad", "Pad005")
pad6.Profile = sketch23
pad6.Length = 20
pad6.Reversed = True

# Sketch on XZ plane
sketch24 = body.newObject("Sketcher::SketchObject", "Sketch023")
sketch24.AttachmentSupport = (doc.getObject("XZ_Plane"), [""])
sketch24.MapMode = "FlatFace"
sketch24.AttachmentOffset = App.Placement(Vector(0, 0, 6.001751), App.Rotation())
sketch24.addGeometry(Part.Circle(Vector(72, 21.3, 0), Vector(0, 0, 1), 1.5), False)
sketch24.addConstraint([
    Sketcher.Constraint("Diameter", 0, Q("3 mm")),
    Sketcher.Constraint("DistanceX", -1, 1, 0, 3, Q("72 mm")),
    Sketcher.Constraint("DistanceY", -1, 1, 0, 3, Q("21.32049 mm")),
])
pocket18 = body.newObject("PartDesign::Pocket", "Pocket017")
pocket18.Profile = sketch24
pocket18.Type = "ThroughAll"
pocket18.Reversed = True

# Sketch on XZ plane
sketch25 = body.newObject("Sketcher::SketchObject", "Sketch024")
sketch25.AttachmentSupport = (doc.getObject("XZ_Plane"), [""])
sketch25.MapMode = "FlatFace"
sketch25.AttachmentOffset = App.Placement(Vector(0, 0, 29.001751), App.Rotation())
add_polygon(sketch25, [(72, 24.6), (69.2, 22.9), (69.2, 19.7), (72, 18.1), (74.8, 19.7), (74.8, 22.9)])  # lines 0-5
sketch25.addConstraint([
    Sketcher.Constraint("Vertical", 1),
    Sketcher.Constraint("Vertical", 4),
    Sketcher.Constraint("Parallel", 0, 3),
    Sketcher.Constraint("Parallel", 2, 5),
    Sketcher.Constraint("Horizontal", 1, 2, 3, 2),
    Sketcher.Constraint("Horizontal", 0, 2, 4, 2),
    Sketcher.Constraint("Vertical", 2, 2, 5, 2),
    Sketcher.Constraint("Angle", 0, Q("-150 deg")),
    Sketcher.Constraint("DistanceX", -1, 1, 2, 2, Q("72 mm")),
    Sketcher.Constraint("DistanceY", 1, 2, 1, 1, Q("3.25 mm")),
    Sketcher.Constraint("DistanceY", 2, 2, 5, 2, Q("6.5 mm")),
    Sketcher.Constraint("DistanceY", -1, 1, 0, 2, Q("22.94549 mm")),
])
pocket19 = body.newObject("PartDesign::Pocket", "Pocket018")
pocket19.Profile = sketch25
pocket19.Length = 15

# Sketch on XZ plane
sketch26 = body.newObject("Sketcher::SketchObject", "Sketch025")
sketch26.AttachmentSupport = (doc.getObject("XZ_Plane"), [""])
sketch26.MapMode = "FlatFace"
sketch26.AttachmentOffset = App.Placement(Vector(0, 0, 2.001751), App.Rotation())
add_polygon(sketch26, [(67, -46), (67, -41), (77, -41), (77, -46)])  # lines 0-3
sketch26.addConstraint([
    Sketcher.Constraint("Vertical", 0),
    Sketcher.Constraint("Horizontal", 1),
    Sketcher.Constraint("Vertical", 2),
    Sketcher.Constraint("Horizontal", 3),
    Sketcher.Constraint("DistanceX", 1, 1, 1, 2, Q("10 mm")),
    Sketcher.Constraint("DistanceY", 0, 1, 0, 2, Q("5 mm")),
    Sketcher.Constraint("DistanceX", -1, 1, 0, 2, Q("67 mm")),
    Sketcher.Constraint("DistanceY", 0, 2, -1, 1, Q("40.67951 mm")),
])
pocket20 = body.newObject("PartDesign::Pocket", "Pocket019")
pocket20.Profile = sketch26
pocket20.Type = "UpToFirst"
pocket20.Reversed = True

# Sketch on XZ plane
sketch27 = body.newObject("Sketcher::SketchObject", "Sketch026")
sketch27.AttachmentSupport = (doc.getObject("XZ_Plane"), [""])
sketch27.MapMode = "FlatFace"
sketch27.AttachmentOffset = App.Placement(Vector(0, 0, -20.998249), App.Rotation())
sketch27.addGeometry(Part.Circle(Vector(40, 17.3, 0), Vector(0, 0, 1), 1.6), False)
sketch27.addConstraint([
    Sketcher.Constraint("Diameter", 0, Q("3.2 mm")),
    Sketcher.Constraint("DistanceX", -1, 1, 0, 3, Q("40 mm")),
    Sketcher.Constraint("DistanceY", -1, 1, 0, 3, Q("17.32049 mm")),
])
pocket21 = body.newObject("PartDesign::Pocket", "Pocket020")
pocket21.Profile = sketch27
pocket21.Type = "ThroughAll"
pocket21.Reversed = True

# Sketch on XZ plane
sketch28 = body.newObject("Sketcher::SketchObject", "Sketch027")
sketch28.AttachmentSupport = (doc.getObject("XZ_Plane"), [""])
sketch28.MapMode = "FlatFace"
sketch28.AttachmentOffset = App.Placement(Vector(0, 0, 29.001751), App.Rotation())
add_polygon(sketch28, [(38.4, 20.1), (36.8, 17.3), (38.4, 14.5), (41.6, 14.5), (43.2, 17.3), (41.6, 20.1)])  # lines 0-5
sketch28.addConstraint([
    Sketcher.Constraint("Horizontal", 2),
    Sketcher.Constraint("Horizontal", 5),
    Sketcher.Constraint("Parallel", 0, 3),
    Sketcher.Constraint("Parallel", 1, 4),
    Sketcher.Constraint("Horizontal", 0, 2, 3, 2),
    Sketcher.Constraint("Vertical", 2, 2, 4, 2),
    Sketcher.Constraint("Vertical", 1, 2, 5, 2),
    Sketcher.Constraint("Angle", 0, Q("-120 deg")),
    Sketcher.Constraint("DistanceX", 2, 1, 2, 2, Q("3.25 mm")),
    Sketcher.Constraint("DistanceX", 0, 2, 3, 2, Q("6.5 mm")),
    Sketcher.Constraint("DistanceX", -1, 1, 0, 2, Q("36.75 mm")),
    Sketcher.Constraint("DistanceY", -1, 1, 0, 2, Q("17.32049 mm")),
])
pocket22 = body.newObject("PartDesign::Pocket", "Pocket021")
pocket22.Profile = sketch28
pocket22.Length = 14

# Sketch on YZ plane
sketch29 = body.newObject("Sketcher::SketchObject", "Sketch028")
sketch29.AttachmentSupport = (doc.getObject("YZ_Plane"), [""])
sketch29.MapMode = "FlatFace"
sketch29.AttachmentOffset = App.Placement(Vector(0, 0, 80), App.Rotation())
sketch29.addGeometry(Part.Circle(Vector(-16.5, 3.3, 0), Vector(0, 0, 1), 3.2), False)
sketch29.addConstraint([
    Sketcher.Constraint("Diameter", 0, Q("6.4 mm")),
    Sketcher.Constraint("DistanceY", -1, 1, 0, 3, Q("3.32049 mm")),
    Sketcher.Constraint("DistanceX", 0, 3, -1, 1, Q("16.511384 mm")),
])
pocket23 = body.newObject("PartDesign::Pocket", "Pocket022")
pocket23.Profile = sketch29
pocket23.Type = "UpToFirst"

# Sketch on YZ plane
sketch30 = body.newObject("Sketcher::SketchObject", "Sketch029")
sketch30.AttachmentSupport = (doc.getObject("YZ_Plane"), [""])
sketch30.MapMode = "FlatFace"
sketch30.AttachmentOffset = App.Placement(Vector(0, 0, 77), App.Rotation())
add_polygon(sketch30, [(-7, -1.7), (-26, -1.7), (-26, 8.3), (-7, 8.3)])  # lines 0-3
sketch30.addGeometry(Part.Circle(Vector(-16.5, 3.3, 0), Vector(0, 0, 1), 3.2), False)  # 4
sketch30.addConstraint([
    Sketcher.Constraint("Horizontal", 0),
    Sketcher.Constraint("Vertical", 1),
    Sketcher.Constraint("Horizontal", 2),
    Sketcher.Constraint("Vertical", 3),
    Sketcher.Constraint("Diameter", 4, Q("6.4 mm")),
    Sketcher.Constraint("DistanceY", 1, 1, 1, 2, Q("10 mm")),
    Sketcher.Constraint("DistanceY", 0, 2, 4, 3, Q("5 mm")),
    Sketcher.Constraint("DistanceX", 0, 2, 0, 1, Q("18.980736 mm")),
    Sketcher.Constraint("DistanceY", -1, 1, 4, 3, Q("3.32049 mm")),
    Sketcher.Constraint("DistanceX", 0, 2, -1, 1, Q("26.001751 mm")),
    Sketcher.Constraint("DistanceX", 4, 3, -1, 1, Q("16.511384 mm")),
])
pad7 = body.newObject("PartDesign::Pad", "Pad006")
pad7.Profile = sketch30
pad7.Length = 3
pad7.Reversed = True

# Sketch on YZ plane
sketch31 = body.newObject("Sketcher::SketchObject", "Sketch030")
sketch31.AttachmentSupport = (doc.getObject("YZ_Plane"), [""])
sketch31.MapMode = "FlatFace"
sketch31.AttachmentOffset = App.Placement(Vector(0, 0, 3), App.Rotation())
sketch31.addGeometry(Part.Circle(Vector(-30.5, -26.7, 0), Vector(0, 0, 1), 3.7), False)
sketch31.addConstraint([
    Sketcher.Constraint("Diameter", 0, Q("7.4 mm")),
    Sketcher.Constraint("DistanceY", 0, 3, -1, 1, Q("26.67951 mm")),
    Sketcher.Constraint("DistanceX", 0, 3, -1, 1, Q("30.511384 mm")),
])
pocket24 = body.newObject("PartDesign::Pocket", "Pocket023")
pocket24.Profile = sketch31
pocket24.Type = "UpToFirst"

# Sketch on YZ plane
sketch32 = body.newObject("Sketcher::SketchObject", "Sketch031")
sketch32.AttachmentSupport = (doc.getObject("YZ_Plane"), [""])
sketch32.MapMode = "FlatFace"
sketch32.AttachmentOffset = App.Placement(Vector(0, 0, 3), App.Rotation())
add_polygon(sketch32, [(-29, -18), (-32, -18), (-32, -20), (-29, -20)])  # lines 0-3
sketch32.addConstraint([
    Sketcher.Constraint("Horizontal", 0),
    Sketcher.Constraint("Vertical", 1),
    Sketcher.Constraint("Horizontal", 2),
    Sketcher.Constraint("Vertical", 3),
    Sketcher.Constraint("DistanceX", 0, 2, 0, 1, Q("3 mm")),
    Sketcher.Constraint("DistanceY", 1, 2, 1, 1, Q("2 mm")),
    Sketcher.Constraint("DistanceY", 0, 2, -1, 1, Q("17.97951 mm")),
    Sketcher.Constraint("DistanceX", 0, 2, -1, 1, Q("32.011384 mm")),
])
pocket25 = body.newObject("PartDesign::Pocket", "Pocket024")
pocket25.Profile = sketch32
pocket25.Type = "UpToFirst"

# Sketch on YZ plane
sketch33 = body.newObject("Sketcher::SketchObject", "Sketch032")
sketch33.AttachmentSupport = (doc.getObject("YZ_Plane"), [""])
sketch33.MapMode = "FlatFace"
sketch33.AttachmentOffset = App.Placement(Vector(0, 0, 77), App.Rotation())
sketch33.addGeometry([
    Part.Circle(Vector(16, -64.2, 0), Vector(0, 0, 1), 1.6),
    Part.Circle(Vector(6, -64.2, 0), Vector(0, 0, 1), 1.6),
], False)
sketch33.addConstraint([
    Sketcher.Constraint("Equal", 0, 1),
    Sketcher.Constraint("Horizontal", 0, 3, 1, 3),
    Sketcher.Constraint("Diameter", 0, Q("3.2 mm")),
    Sketcher.Constraint("DistanceX", 1, 3, 0, 3, Q("10 mm")),
    Sketcher.Constraint("DistanceX", -1, 1, 0, 3, Q("15.998249 mm")),
    Sketcher.Constraint("DistanceY", 0, 3, -1, 1, Q("64.162211 mm")),
])
pocket26 = body.newObject("PartDesign::Pocket", "Pocket025")
pocket26.Profile = sketch33
pocket26.Type = "ThroughAll"
pocket26.Midplane = True

# Sketch on XY plane
sketch34 = body.newObject("Sketcher::SketchObject", "Sketch033")
sketch34.AttachmentSupport = (doc.getObject("XY_Plane"), [""])
sketch34.MapMode = "FlatFace"
sketch34.AttachmentOffset = App.Placement(Vector(0, 0, -79.67951), App.Rotation())
add_polygon(sketch34, [(30, 18), (30, 8), (50, 8), (50, 18)])  # lines 0-3
sketch34.addConstraint([
    Sketcher.Constraint("Vertical", 0),
    Sketcher.Constraint("Horizontal", 1),
    Sketcher.Constraint("Vertical", 2),
    Sketcher.Constraint("Horizontal", 3),
    Sketcher.Constraint("DistanceX", 1, 1, 1, 2, Q("20 mm")),
    Sketcher.Constraint("DistanceX", -1, 1, 0, 2, Q("30 mm")),
    Sketcher.Constraint("DistanceY", 0, 2, 0, 1, Q("10.67 mm")),
    Sketcher.Constraint("DistanceY", -1, 1, 0, 2, Q("7.698249 mm")),
])
pocket27 = body.newObject("PartDesign::Pocket", "Pocket026")
pocket27.Profile = sketch34
pocket27.Length = 3
doc.recompute()

chamfer = body.newObject("PartDesign::Chamfer", "Chamfer")
chamfer.Base = (pocket27, edges_at(pocket27, [(40, 2.334, -63.68)]))
chamfer.Size = 10

# Sketch on XY plane
sketch35 = body.newObject("Sketcher::SketchObject", "Sketch034")
sketch35.AttachmentSupport = (doc.getObject("XY_Plane"), [""])
sketch35.MapMode = "FlatFace"
sketch35.AttachmentOffset = App.Placement(Vector(0, 0, -79.67951), App.Rotation())
sketch35.addGeometry([
    Part.Circle(Vector(65, 12.5, 0), Vector(0, 0, 1), 3.1),
    Part.Circle(Vector(15, 12.5, 0), Vector(0, 0, 1), 3.1),
], False)
sketch35.addConstraint([
    Sketcher.Constraint("Equal", 0, 1),
    Sketcher.Constraint("Horizontal", 0, 3, 1, 3),
    Sketcher.Constraint("Diameter", 0, Q("6.2 mm")),
    Sketcher.Constraint("DistanceX", -1, 1, 0, 3, Q("65 mm")),
    Sketcher.Constraint("DistanceX", -1, 1, 1, 3, Q("15 mm")),
    Sketcher.Constraint("DistanceY", -1, 1, 0, 3, Q("12.468249 mm")),
])
pocket28 = body.newObject("PartDesign::Pocket", "Pocket027")
pocket28.Profile = sketch35
pocket28.Type = "ThroughAll"

doc.recompute()
